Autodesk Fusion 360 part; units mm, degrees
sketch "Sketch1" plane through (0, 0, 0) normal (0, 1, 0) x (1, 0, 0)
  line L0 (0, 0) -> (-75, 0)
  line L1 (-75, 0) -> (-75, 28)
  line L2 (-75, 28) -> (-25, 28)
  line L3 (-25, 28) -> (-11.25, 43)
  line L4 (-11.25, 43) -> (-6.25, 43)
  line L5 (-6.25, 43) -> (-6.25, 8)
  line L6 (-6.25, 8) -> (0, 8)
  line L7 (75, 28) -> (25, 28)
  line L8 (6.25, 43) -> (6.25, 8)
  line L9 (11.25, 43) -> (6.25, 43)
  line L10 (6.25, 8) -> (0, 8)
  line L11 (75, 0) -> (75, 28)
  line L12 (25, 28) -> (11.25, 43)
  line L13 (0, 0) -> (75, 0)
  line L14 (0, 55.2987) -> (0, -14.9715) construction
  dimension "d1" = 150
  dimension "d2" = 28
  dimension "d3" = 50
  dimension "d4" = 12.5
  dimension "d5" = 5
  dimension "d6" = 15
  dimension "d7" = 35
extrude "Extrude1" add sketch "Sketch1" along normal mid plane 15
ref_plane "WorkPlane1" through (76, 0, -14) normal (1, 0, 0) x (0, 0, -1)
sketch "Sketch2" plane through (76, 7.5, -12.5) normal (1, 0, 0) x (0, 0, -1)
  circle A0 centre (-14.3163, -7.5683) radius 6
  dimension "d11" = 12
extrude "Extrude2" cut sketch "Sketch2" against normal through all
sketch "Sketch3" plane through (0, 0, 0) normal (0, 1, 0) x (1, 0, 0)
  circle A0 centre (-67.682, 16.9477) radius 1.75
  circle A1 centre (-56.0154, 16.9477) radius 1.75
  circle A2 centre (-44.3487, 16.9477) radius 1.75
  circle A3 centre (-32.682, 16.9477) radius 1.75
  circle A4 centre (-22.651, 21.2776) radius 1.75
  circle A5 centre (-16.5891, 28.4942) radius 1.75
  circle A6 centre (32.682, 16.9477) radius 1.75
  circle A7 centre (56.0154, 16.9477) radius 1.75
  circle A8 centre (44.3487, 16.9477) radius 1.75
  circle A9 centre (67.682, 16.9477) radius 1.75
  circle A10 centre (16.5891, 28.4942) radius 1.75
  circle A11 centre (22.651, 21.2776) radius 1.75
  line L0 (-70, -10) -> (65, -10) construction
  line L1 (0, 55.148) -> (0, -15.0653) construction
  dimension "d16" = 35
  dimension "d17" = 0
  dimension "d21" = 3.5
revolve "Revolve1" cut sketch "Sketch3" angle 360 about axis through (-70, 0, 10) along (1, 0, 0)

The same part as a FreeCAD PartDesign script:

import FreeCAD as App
import Part
import Sketcher
Q = App.Units.Quantity


def add_polygon(sketch, points):
    """Adds a closed chain of lines whose ends are joined by coincident constraints."""
    first, n = sketch.GeometryCount, len(points)
    for a, b in zip(points, points[1:] + points[:1]):
        sketch.addGeometry(Part.LineSegment(App.Vector(*a, 0), App.Vector(*b, 0)), False)
    for i in range(n):
        sketch.addConstraint(Sketcher.Constraint("Coincident", first + i, 2, first + (i + 1) % n, 1))

doc = App.newDocument("Part")
params = doc.addObject("Spreadsheet::Sheet", "Params")
for row, (alias, value) in enumerate([
    ("sketch1_width", "150 mm"),
    ("sketch1_width2", "50 mm"),
    ("sketch1_width3", "5 mm"),
    ("sketch1_height", "28 mm"),
    ("sketch1_height2", "35 mm"),
    ("pad1_length", "15 mm"),
    ("sketch2_diameter", "12 mm"),
    ("sketch3_diameter", "3.5 mm"),
    ("groove_angle", "360 deg"),
], start=1):
    params.set(f"A{row}", alias)
    params.set(f"B{row}", "=" + value)
    params.setAlias(f"B{row}", alias)

body = doc.addObject("PartDesign::Body", "Body")

# Sketch on XZ plane
sketch1 = doc.addObject("Sketcher::SketchObject", "Sketch")
body.addObject(sketch1)
sketch1.AttachmentSupport = (doc.XZ_Plane, [""])
sketch1.MapMode = "FlatFace"
add_polygon(sketch1, [(-75, 0), (75, 0), (75, -28), (25, -28), (11.25, -43), (6.25, -43), (6.25, -8), (-6.25, -8), (-6.25, -43), (-11.25, -43), (-25, -28), (-75, -28)])  # lines 0-11
sketch1.addConstraint(Sketcher.Constraint("Horizontal", 0))
sketch1.addConstraint(Sketcher.Constraint("Vertical", 1))
sketch1.addConstraint(Sketcher.Constraint("Horizontal", 2))
sketch1.addConstraint(Sketcher.Constraint("Horizontal", 4))
sketch1.addConstraint(Sketcher.Constraint("Vertical", 5))
sketch1.addConstraint(Sketcher.Constraint("Horizontal", 6))
sketch1.addConstraint(Sketcher.Constraint("Vertical", 7))
sketch1.addConstraint(Sketcher.Constraint("Horizontal", 8))
sketch1.addConstraint(Sketcher.Constraint("Horizontal", 10))
sketch1.addConstraint(Sketcher.Constraint("Vertical", 11))
sketch1.addConstraint(Sketcher.Constraint("Symmetric", 0, 2, 11, 2, -1, 1))
sketch1.addConstraint(Sketcher.Constraint("Symmetric", 4, 2, 7, 2, -2))
sketch1.addConstraint(Sketcher.Constraint("Symmetric", 2, 2, 9, 2, -2))
sketch1.addConstraint(Sketcher.Constraint("Equal", 4, 8))
sketch1.addConstraint(Sketcher.Constraint("DistanceX", 0, 1, 0, 2, Q("150 mm")))
sketch1.addConstraint(Sketcher.Constraint("DistanceX", 2, 2, 2, 1, Q("50 mm")))
sketch1.addConstraint(Sketcher.Constraint("DistanceX", 4, 2, 4, 1, Q("5 mm")))
sketch1.addConstraint(Sketcher.Constraint("DistanceY", 1, 2, 1, 1, Q("28 mm")))
sketch1.addConstraint(Sketcher.Constraint("DistanceY", 5, 1, 5, 2, Q("35 mm")))
sketch1.addConstraint(Sketcher.Constraint("DistanceX", 6, 2, 6, 1, Q("12.5 mm")))
sketch1.addConstraint(Sketcher.Constraint("DistanceY", 3, 2, 2, 2, Q("15 mm")))
sketch1.setExpression("Constraints[26]", "Params.sketch1_width")
sketch1.setExpression("Constraints[27]", "Params.sketch1_width2")
sketch1.setExpression("Constraints[28]", "Params.sketch1_width3")
sketch1.setExpression("Constraints[29]", "Params.sketch1_height")
sketch1.setExpression("Constraints[30]", "Params.sketch1_height2")
pad1 = doc.addObject("PartDesign::Pad", "Pad")
body.addObject(pad1)
pad1.Profile = sketch1
pad1.setExpression("Length", "Params.pad1_length")
pad1.Midplane = True

# Sketch on YZ plane
sketch2 = doc.addObject("Sketcher::SketchObject", "Sketch001")
body.addObject(sketch2)
sketch2.AttachmentSupport = (doc.YZ_Plane, [""])
sketch2.MapMode = "FlatFace"
sketch2.AttachmentOffset = App.Placement(App.Vector(0, 0, 76), App.Rotation())
sketch2.addGeometry(Part.Circle(App.Vector(-0.0683, 1.8163, 0), App.Vector(0, 0, 1), 6), False)
sketch2.addConstraint(Sketcher.Constraint("Diameter", 0, Q("12 mm")))
sketch2.addConstraint(Sketcher.Constraint("DistanceX", 0, 3, -1, 1, Q("0.0683 mm")))
sketch2.addConstraint(Sketcher.Constraint("DistanceY", -1, 1, 0, 3, Q("1.8163 mm")))
sketch2.setExpression("Constraints[0]", "Params.sketch2_diameter")
pocket1 = doc.addObject("PartDesign::Pocket", "Pocket")
body.addObject(pocket1)
pocket1.Profile = sketch2
pocket1.Type = "ThroughAll"

# Sketch on XZ plane
sketch3 = doc.addObject("Sketcher::SketchObject", "Sketch002")
body.addObject(sketch3)
sketch3.AttachmentSupport = (doc.XZ_Plane, [""])
sketch3.MapMode = "FlatFace"
sketch3.addGeometry(Part.Circle(App.Vector(-67.682, -16.9477, 0), App.Vector(0, 0, 1), 1.75), False)
sketch3.addGeometry(Part.Circle(App.Vector(-56.0154, -16.9477, 0), App.Vector(0, 0, 1), 1.75), False)
sketch3.addGeometry(Part.Circle(App.Vector(-44.3487, -16.9477, 0), App.Vector(0, 0, 1), 1.75), False)
sketch3.addGeometry(Part.Circle(App.Vector(-32.682, -16.9477, 0), App.Vector(0, 0, 1), 1.75), False)
sketch3.addGeometry(Part.Circle(App.Vector(-22.651, -21.2776, 0), App.Vector(0, 0, 1), 1.75), False)
sketch3.addGeometry(Part.Circle(App.Vector(-16.5891, -28.4942, 0), App.Vector(0, 0, 1), 1.75), False)
sketch3.addGeometry(Part.Circle(App.Vector(32.682, -16.9477, 0), App.Vector(0, 0, 1), 1.75), False)
sketch3.addGeometry(Part.Circle(App.Vector(56.0154, -16.9477, 0), App.Vector(0, 0, 1), 1.75), False)
sketch3.addGeometry(Part.Circle(App.Vector(44.3487, -16.9477, 0), App.Vector(0, 0, 1), 1.75), False)
sketch3.addGeometry(Part.Circle(App.Vector(67.682, -16.9477, 0), App.Vector(0, 0, 1), 1.75), False)
sketch3.addGeometry(Part.Circle(App.Vector(16.5891, -28.4942, 0), App.Vector(0, 0, 1), 1.75), False)
sketch3.addGeometry(Part.Circle(App.Vector(22.651, -21.2776, 0), App.Vector(0, 0, 1), 1.75), False)
sketch3.addGeometry(Part.LineSegment(App.Vector(-67.682, 10, 0), App.Vector(67.682, 10, 0)), True)  # axis
sketch3.addConstraint(Sketcher.Constraint("Horizontal", 12))
sketch3.addConstraint(Sketcher.Constraint("Equal", 0, 1))
sketch3.addConstraint(Sketcher.Constraint("Equal", 1, 2))
sketch3.addConstraint(Sketcher.Constraint("Equal", 2, 3))
sketch3.addConstraint(Sketcher.Constraint("Equal", 3, 4))
sketch3.addConstraint(Sketcher.Constraint("Equal", 4, 5))
sketch3.addConstraint(Sketcher.Constraint("Equal", 5, 6))
sketch3.addConstraint(Sketcher.Constraint("Equal", 6, 7))
sketch3.addConstraint(Sketcher.Constraint("Equal", 7, 8))
sketch3.addConstraint(Sketcher.Constraint("Equal", 8, 9))
sketch3.addConstraint(Sketcher.Constraint("Equal", 9, 10))
sketch3.addConstraint(Sketcher.Constraint("Equal", 10, 11))
sketch3.addConstraint(Sketcher.Constraint("Symmetric", 3, 3, 6, 3, -2))
sketch3.addConstraint(Sketcher.Constraint("Symmetric", 1, 3, 7, 3, -2))
sketch3.addConstraint(Sketcher.Constraint("Symmetric", 2, 3, 8, 3, -2))
sketch3.addConstraint(Sketcher.Constraint("Symmetric", 0, 3, 9, 3, -2))
sketch3.addConstraint(Sketcher.Constraint("Symmetric", 5, 3, 10, 3, -2))
sketch3.addConstraint(Sketcher.Constraint("Symmetric", 4, 3, 11, 3, -2))
sketch3.addConstraint(Sketcher.Constraint("Horizontal", 0, 3, 1, 3))
sketch3.addConstraint(Sketcher.Constraint("Horizontal", 1, 3, 2, 3))
sketch3.addConstraint(Sketcher.Constraint("Horizontal", 2, 3, 3, 3))
sketch3.addConstraint(Sketcher.Constraint("Vertical", 0, 3, 12, 1))
sketch3.addConstraint(Sketcher.Constraint("Vertical", 9, 3, 12, 2))
sketch3.addConstraint(Sketcher.Constraint("Diameter", 0, Q("3.5 mm")))
sketch3.addConstraint(Sketcher.Constraint("DistanceX", 0, 3, 3, 3, Q("35 mm")))
sketch3.addConstraint(Sketcher.Constraint("DistanceY", -1, 1, 12, 1, Q("10 mm")))
sketch3.addConstraint(Sketcher.Constraint("DistanceX", 12, 1, 12, 2, Q("135.364 mm")))
sketch3.addConstraint(Sketcher.Constraint("DistanceY", 4, 3, 3, 3, Q("4.33 mm")))
sketch3.addConstraint(Sketcher.Constraint("DistanceX", 4, 3, 10, 3, Q("39.24 mm")))
sketch3.addConstraint(Sketcher.Constraint("DistanceX", 4, 3, -1, 1, Q("22.651 mm")))
sketch3.addConstraint(Sketcher.Constraint("DistanceX", 2, 3, 7, 3, Q("100.364 mm")))
sketch3.addConstraint(Sketcher.Constraint("DistanceY", 0, 3, -1, 1, Q("16.9477 mm")))
sketch3.addConstraint(Sketcher.Constraint("DistanceX", 1, 3, -1, 1, Q("56.0154 mm")))
sketch3.addConstraint(Sketcher.Constraint("DistanceY", 5, 3, -1, 1, Q("28.4942 mm")))
sketch3.setExpression("Constraints[23]", "Params.sketch3_diameter")
groove = doc.addObject("PartDesign::Groove", "Groove")
body.addObject(groove)
groove.Profile = sketch3
groove.ReferenceAxis = (sketch3, ["Axis0"])
groove.setExpression("Angle", "Params.groove_angle")

doc.recompute()
